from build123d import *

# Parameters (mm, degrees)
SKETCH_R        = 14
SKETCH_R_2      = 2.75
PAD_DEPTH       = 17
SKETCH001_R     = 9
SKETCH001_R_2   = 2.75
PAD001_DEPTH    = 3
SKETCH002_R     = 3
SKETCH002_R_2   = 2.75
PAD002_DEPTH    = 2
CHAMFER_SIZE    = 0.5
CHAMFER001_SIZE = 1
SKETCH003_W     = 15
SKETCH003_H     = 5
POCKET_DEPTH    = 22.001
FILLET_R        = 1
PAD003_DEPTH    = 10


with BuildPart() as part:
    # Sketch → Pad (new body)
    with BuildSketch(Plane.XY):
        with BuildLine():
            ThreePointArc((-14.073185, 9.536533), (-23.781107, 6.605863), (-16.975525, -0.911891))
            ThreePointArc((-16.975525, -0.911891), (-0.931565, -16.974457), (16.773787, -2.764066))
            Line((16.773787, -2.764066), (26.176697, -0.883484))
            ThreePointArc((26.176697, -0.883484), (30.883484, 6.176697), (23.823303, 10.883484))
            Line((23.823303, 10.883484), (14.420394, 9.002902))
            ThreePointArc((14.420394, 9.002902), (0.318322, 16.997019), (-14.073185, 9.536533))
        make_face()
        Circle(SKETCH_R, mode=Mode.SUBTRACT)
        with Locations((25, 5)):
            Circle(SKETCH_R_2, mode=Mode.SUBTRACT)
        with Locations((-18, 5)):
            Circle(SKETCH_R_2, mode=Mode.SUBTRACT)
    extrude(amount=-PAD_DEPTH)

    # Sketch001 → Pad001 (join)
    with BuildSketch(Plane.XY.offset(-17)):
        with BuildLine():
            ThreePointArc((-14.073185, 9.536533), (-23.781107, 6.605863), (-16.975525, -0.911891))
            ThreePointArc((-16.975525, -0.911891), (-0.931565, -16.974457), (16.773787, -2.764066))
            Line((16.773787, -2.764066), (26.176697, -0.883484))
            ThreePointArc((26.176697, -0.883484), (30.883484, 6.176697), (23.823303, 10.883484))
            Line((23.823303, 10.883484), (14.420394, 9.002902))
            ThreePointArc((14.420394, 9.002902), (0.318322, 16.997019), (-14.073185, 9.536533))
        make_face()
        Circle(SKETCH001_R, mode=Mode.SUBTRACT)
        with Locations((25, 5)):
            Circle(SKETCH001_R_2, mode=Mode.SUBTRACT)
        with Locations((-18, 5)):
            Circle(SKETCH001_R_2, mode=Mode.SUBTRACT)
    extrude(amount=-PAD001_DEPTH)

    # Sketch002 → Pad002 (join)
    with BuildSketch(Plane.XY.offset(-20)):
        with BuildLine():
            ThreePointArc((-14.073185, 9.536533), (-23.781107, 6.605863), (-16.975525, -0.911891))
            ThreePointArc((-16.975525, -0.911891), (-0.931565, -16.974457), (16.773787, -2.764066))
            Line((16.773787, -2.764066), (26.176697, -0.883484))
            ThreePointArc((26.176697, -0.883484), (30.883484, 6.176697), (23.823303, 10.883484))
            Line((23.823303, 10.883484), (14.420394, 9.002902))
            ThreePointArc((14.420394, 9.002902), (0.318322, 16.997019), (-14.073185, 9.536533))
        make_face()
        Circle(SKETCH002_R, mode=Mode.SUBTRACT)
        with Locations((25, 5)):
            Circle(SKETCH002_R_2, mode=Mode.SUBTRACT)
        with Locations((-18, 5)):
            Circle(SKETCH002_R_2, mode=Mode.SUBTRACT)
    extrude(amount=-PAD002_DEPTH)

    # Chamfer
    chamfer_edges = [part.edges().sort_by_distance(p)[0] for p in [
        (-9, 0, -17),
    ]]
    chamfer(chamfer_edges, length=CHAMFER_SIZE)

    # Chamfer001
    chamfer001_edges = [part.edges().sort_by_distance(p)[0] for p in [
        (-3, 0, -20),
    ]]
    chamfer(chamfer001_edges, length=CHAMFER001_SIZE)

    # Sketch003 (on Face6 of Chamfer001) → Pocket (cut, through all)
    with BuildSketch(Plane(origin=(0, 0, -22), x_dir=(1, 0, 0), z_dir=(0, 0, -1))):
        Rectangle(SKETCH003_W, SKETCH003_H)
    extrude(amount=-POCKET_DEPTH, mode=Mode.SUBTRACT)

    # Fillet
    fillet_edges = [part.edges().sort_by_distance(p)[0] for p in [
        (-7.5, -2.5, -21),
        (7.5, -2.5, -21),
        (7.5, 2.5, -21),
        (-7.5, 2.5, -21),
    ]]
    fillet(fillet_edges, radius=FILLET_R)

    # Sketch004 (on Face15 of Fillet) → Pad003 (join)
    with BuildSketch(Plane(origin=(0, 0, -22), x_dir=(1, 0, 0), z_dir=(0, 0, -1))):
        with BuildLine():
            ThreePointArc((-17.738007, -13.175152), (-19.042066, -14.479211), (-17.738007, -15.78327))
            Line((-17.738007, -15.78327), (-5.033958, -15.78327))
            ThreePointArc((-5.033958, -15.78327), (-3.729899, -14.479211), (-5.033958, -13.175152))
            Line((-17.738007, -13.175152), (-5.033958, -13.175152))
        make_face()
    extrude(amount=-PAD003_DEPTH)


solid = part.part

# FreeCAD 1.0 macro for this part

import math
import FreeCAD as App
import Part
import Sketcher
from FreeCAD import Vector


def edges_at(feature, points):
    """Names of the edges that pass closest to the given points."""
    edges = feature.Shape.Edges
    near = lambda p: min(range(len(edges)), key=lambda i: edges[i].distToShape(Part.Vertex(*p))[0])
    return sorted({f"Edge{near(p) + 1}" for p in points})

doc = App.newDocument("Part")
params = doc.addObject("Spreadsheet::Sheet", "Params")
for row, (alias, value) in enumerate([
    ("sketch1_diameter", "28 mm"),
    ("sketch1_radius", "6 mm"),
    ("sketch1_radius2", "17 mm"),
    ("sketch1_diameter2", "5.5 mm"),
    ("pad1_length", "17 mm"),
    ("sketch2_diameter", "18 mm"),
    ("sketch2_radius", "6 mm"),
    ("sketch2_radius2", "17 mm"),
    ("sketch2_diameter2", "5.5 mm"),
    ("pad2_length", "3 mm"),
    ("sketch3_diameter", "6 mm"),
    ("sketch3_radius", "6 mm"),
    ("sketch3_radius2", "17 mm"),
    ("sketch3_diameter2", "5.5 mm"),
    ("pad3_length", "2 mm"),
    ("chamfer_size", "0.5 mm"),
    ("chamfer2_size", "1 mm"),
    ("sketch4_width", "15 mm"),
    ("sketch4_height", "5 mm"),
    ("fillet_radius", "1 mm"),
    ("pad4_length", "10 mm"),
], start=1):
    params.set(f"A{row}", alias)
    params.set(f"B{row}", "=" + value)
    params.setAlias(f"B{row}", alias)

body = doc.addObject("PartDesign::Body", "Body")

# Sketch on XY plane
sketch1 = body.newObject("Sketcher::SketchObject", "Sketch")
sketch1.AttachmentSupport = (doc.getObject("XY_Plane"), [""])
sketch1.MapMode = "FlatFace"
sketch1.addGeometry([
    Part.ArcOfCircle(Part.Circle(Vector(-17.999999, 5, 0), Vector(0, 0, 1), 6), math.radians(49.120599), math.radians(279.831179)),  # 0
    Part.ArcOfCircle(Part.Circle(Vector(0, 0, 0), Vector(0, 0, 1), 17), math.radians(-176.925143), math.radians(-9.357383)),  # 1
    Part.LineSegment(Vector(16.773787, -2.764066, 0), Vector(26.176697, -0.883484, 0)),  # 2
    Part.ArcOfCircle(Part.Circle(Vector(25, 5, 0), Vector(0, 0, 1), 6), math.radians(-78.690066), math.radians(101.309934)),  # 3
    Part.LineSegment(Vector(23.823303, 10.883484, 0), Vector(14.420394, 9.002902, 0)),  # 4
    Part.ArcOfCircle(Part.Circle(Vector(0, -0.000001, 0), Vector(0, 0, 1), 17.000001), math.radians(31.977252), math.radians(145.876915)),  # 5
    Part.Circle(Vector(-18, 5, 0), Vector(0, 0, 1), 2.75),  # 6
    Part.Circle(Vector(0, 0, 0), Vector(0, 0, 1), 14),  # 7
    Part.Circle(Vector(25, 5, 0), Vector(0, 0, 1), 2.75),  # 8
], False)
sketch1.addConstraint([
    Sketcher.Constraint("Coincident", 0, 2, 1, 1),
    Sketcher.Constraint("Coincident", 1, 2, 2, 1),
    Sketcher.Constraint("Tangent", 2, 2, 3, 1),
    Sketcher.Constraint("Tangent", 3, 2, 4, 1),
    Sketcher.Constraint("Coincident", 4, 2, 5, 1),
    Sketcher.Constraint("Coincident", 5, 2, 0, 1),
    Sketcher.Constraint("Coincident", 1, 3, -1, 1),
    Sketcher.Constraint("Coincident", 5, 3, -1, 1),
    Sketcher.Constraint("Coincident", 7, 3, -1, 1),
    Sketcher.Constraint("Coincident", 6, 3, 0, 3),
    Sketcher.Constraint("Coincident", 8, 3, 3, 3),
    Sketcher.Constraint("Equal", 0, 3),
    Sketcher.Constraint("Equal", 1, 5),
    Sketcher.Constraint("Equal", 6, 8),
    Sketcher.Constraint("Parallel", 2, 4),
    Sketcher.Constraint("Horizontal", 0, 3, 3, 3),
    Sketcher.Constraint("Equal", 2, 4),
    Sketcher.Constraint("Diameter", 7, 28.0),
    Sketcher.Constraint("Radius", 0, 6.0),
    Sketcher.Constraint("Radius", 1, 17.0),
    Sketcher.Constraint("Diameter", 6, 5.5),
    Sketcher.Constraint("DistanceX", 0, 3, -1, 1, 17.999999),
    Sketcher.Constraint("DistanceY", -1, 1, 0, 3, 5.0),
    Sketcher.Constraint("DistanceX", -1, 1, 3, 3, 25.0),
])
sketch1.setExpression("Constraints[17]", "Params.sketch1_diameter")
sketch1.setExpression("Constraints[18]", "Params.sketch1_radius")
sketch1.setExpression("Constraints[19]", "Params.sketch1_radius2")
sketch1.setExpression("Constraints[20]", "Params.sketch1_diameter2")
pad1 = body.newObject("PartDesign::Pad", "Pad")
pad1.Profile = sketch1
pad1.setExpression("Length", "Params.pad1_length")
pad1.Reversed = True

# Sketch on XY plane
sketch2 = body.newObject("Sketcher::SketchObject", "Sketch001")
sketch2.AttachmentSupport = (doc.getObject("XY_Plane"), [""])
sketch2.MapMode = "FlatFace"
sketch2.AttachmentOffset = App.Placement(Vector(0, 0, -17), App.Rotation())
sketch2.addGeometry([
    Part.ArcOfCircle(Part.Circle(Vector(-17.999999, 5, 0), Vector(0, 0, 1), 6), math.radians(49.120599), math.radians(279.831179)),  # 0
    Part.ArcOfCircle(Part.Circle(Vector(0, 0, 0), Vector(0, 0, 1), 17), math.radians(-176.925143), math.radians(-9.357383)),  # 1
    Part.LineSegment(Vector(16.773787, -2.764066, 0), Vector(26.176697, -0.883484, 0)),  # 2
    Part.ArcOfCircle(Part.Circle(Vector(25, 5, 0), Vector(0, 0, 1), 6), math.radians(-78.690066), math.radians(101.309934)),  # 3
    Part.LineSegment(Vector(23.823303, 10.883484, 0), Vector(14.420394, 9.002902, 0)),  # 4
    Part.ArcOfCircle(Part.Circle(Vector(0, -0.000001, 0), Vector(0, 0, 1), 17.000001), math.radians(31.977252), math.radians(145.876915)),  # 5
    Part.Circle(Vector(0, 0, 0), Vector(0, 0, 1), 9),  # 6
    Part.Circle(Vector(-18, 5, 0), Vector(0, 0, 1), 2.75),  # 7
    Part.Circle(Vector(25, 5, 0), Vector(0, 0, 1), 2.75),  # 8
], False)
sketch2.addConstraint([
    Sketcher.Constraint("Coincident", 0, 2, 1, 1),
    Sketcher.Constraint("Coincident", 1, 2, 2, 1),
    Sketcher.Constraint("Tangent", 2, 2, 3, 1),
    Sketcher.Constraint("Tangent", 3, 2, 4, 1),
    Sketcher.Constraint("Coincident", 4, 2, 5, 1),
    Sketcher.Constraint("Coincident", 5, 2, 0, 1),
    Sketcher.Constraint("Coincident", 1, 3, -1, 1),
    Sketcher.Constraint("Coincident", 5, 3, -1, 1),
    Sketcher.Constraint("Coincident", 6, 3, -1, 1),
    Sketcher.Constraint("Coincident", 7, 3, 0, 3),
    Sketcher.Constraint("Coincident", 8, 3, 3, 3),
    Sketcher.Constraint("Equal", 0, 3),
    Sketcher.Constraint("Equal", 1, 5),
    Sketcher.Constraint("Equal", 7, 8),
    Sketcher.Constraint("Parallel", 2, 4),
    Sketcher.Constraint("Horizontal", 0, 3, 3, 3),
    Sketcher.Constraint("Equal", 2, 4),
    Sketcher.Constraint("Diameter", 6, 18.0),
    Sketcher.Constraint("Radius", 0, 6.0),
    Sketcher.Constraint("Radius", 1, 17.0),
    Sketcher.Constraint("Diameter", 7, 5.5),
    Sketcher.Constraint("DistanceX", 0, 3, -1, 1, 17.999999),
    Sketcher.Constraint("DistanceY", -1, 1, 0, 3, 5.0),
    Sketcher.Constraint("DistanceX", -1, 1, 3, 3, 25.0),
])
sketch2.setExpression("Constraints[17]", "Params.sketch2_diameter")
sketch2.setExpression("Constraints[18]", "Params.sketch2_radius")
sketch2.setExpression("Constraints[19]", "Params.sketch2_radius2")
sketch2.setExpression("Constraints[20]", "Params.sketch2_diameter2")
pad2 = body.newObject("PartDesign::Pad", "Pad001")
pad2.Profile = sketch2
pad2.setExpression("Length", "Params.pad2_length")
pad2.Reversed = True

# Sketch on XY plane
sketch3 = body.newObject("Sketcher::SketchObject", "Sketch002")
sketch3.AttachmentSupport = (doc.getObject("XY_Plane"), [""])
sketch3.MapMode = "FlatFace"
sketch3.AttachmentOffset = App.Placement(Vector(0, 0, -20), App.Rotation())
sketch3.addGeometry([
    Part.ArcOfCircle(Part.Circle(Vector(-17.999999, 5, 0), Vector(0, 0, 1), 6), math.radians(49.120599), math.radians(279.831179)),  # 0
    Part.ArcOfCircle(Part.Circle(Vector(0, 0, 0), Vector(0, 0, 1), 17), math.radians(-176.925143), math.radians(-9.357383)),  # 1
    Part.LineSegment(Vector(16.773787, -2.764066, 0), Vector(26.176697, -0.883484, 0)),  # 2
    Part.ArcOfCircle(Part.Circle(Vector(25, 5, 0), Vector(0, 0, 1), 6), math.radians(-78.690066), math.radians(101.309934)),  # 3
    Part.LineSegment(Vector(23.823303, 10.883484, 0), Vector(14.420394, 9.002902, 0)),  # 4
    Part.ArcOfCircle(Part.Circle(Vector(0, -0.000001, 0), Vector(0, 0, 1), 17.000001), math.radians(31.977252), math.radians(145.876915)),  # 5
    Part.Circle(Vector(0, 0, 0), Vector(0, 0, 1), 3),  # 6
    Part.Circle(Vector(-18, 5, 0), Vector(0, 0, 1), 2.75),  # 7
    Part.Circle(Vector(25, 5, 0), Vector(0, 0, 1), 2.75),  # 8
], False)
sketch3.addConstraint([
    Sketcher.Constraint("Coincident", 0, 2, 1, 1),
    Sketcher.Constraint("Coincident", 1, 2, 2, 1),
    Sketcher.Constraint("Tangent", 2, 2, 3, 1),
    Sketcher.Constraint("Tangent", 3, 2, 4, 1),
    Sketcher.Constraint("Coincident", 4, 2, 5, 1),
    Sketcher.Constraint("Coincident", 5, 2, 0, 1),
    Sketcher.Constraint("Coincident", 1, 3, -1, 1),
    Sketcher.Constraint("Coincident", 5, 3, -1, 1),
    Sketcher.Constraint("Coincident", 6, 3, -1, 1),
    Sketcher.Constraint("Coincident", 7, 3, 0, 3),
    Sketcher.Constraint("Coincident", 8, 3, 3, 3),
    Sketcher.Constraint("Equal", 0, 3),
    Sketcher.Constraint("Equal", 1, 5),
    Sketcher.Constraint("Equal", 7, 8),
    Sketcher.Constraint("Parallel", 2, 4),
    Sketcher.Constraint("Horizontal", 0, 3, 3, 3),
    Sketcher.Constraint("Equal", 2, 4),
    Sketcher.Constraint("Diameter", 6, 6.0),
    Sketcher.Constraint("Radius", 0, 6.0),
    Sketcher.Constraint("Radius", 1, 17.0),
    Sketcher.Constraint("Diameter", 7, 5.5),
    Sketcher.Constraint("DistanceX", 0, 3, -1, 1, 17.999999),
    Sketcher.Constraint("DistanceY", -1, 1, 0, 3, 5.0),
    Sketcher.Constraint("DistanceX", -1, 1, 3, 3, 25.0),
])
sketch3.setExpression("Constraints[17]", "Params.sketch3_diameter")
sketch3.setExpression("Constraints[18]", "Params.sketch3_radius")
sketch3.setExpression("Constraints[19]", "Params.sketch3_radius2")
sketch3.setExpression("Constraints[20]", "Params.sketch3_diameter2")
pad3 = body.newObject("PartDesign::Pad", "Pad002")
pad3.Profile = sketch3
pad3.setExpression("Length", "Params.pad3_length")
pad3.Reversed = True
doc.recompute()

chamfer = body.newObject("PartDesign::Chamfer", "Chamfer")
chamfer.Base = (pad3, edges_at(pad3, [(-9, 0, -17)]))
chamfer.setExpression("Size", "Params.chamfer_size")
doc.recompute()

chamfer2 = body.newObject("PartDesign::Chamfer", "Chamfer001")
chamfer2.Base = (chamfer, edges_at(chamfer, [(-3, 0, -20)]))
chamfer2.setExpression("Size", "Params.chamfer2_size")

# Sketch on XY plane
sketch4 = body.newObject("Sketcher::SketchObject", "Sketch003")
sketch4.AttachmentSupport = (doc.getObject("XY_Plane"), [""])
sketch4.MapMode = "FlatFace"
sketch4.AttachmentOffset = App.Placement(Vector(0, 0, -22), App.Rotation())
sketch4.addGeometry([
    Part.LineSegment(Vector(-7.5, -2.5, 0), Vector(-7.5, 2.5, 0)),
    Part.LineSegment(Vector(-7.5, 2.5, 0), Vector(7.5, 2.5, 0)),
    Part.LineSegment(Vector(7.5, 2.5, 0), Vector(7.5, -2.5, 0)),
    Part.LineSegment(Vector(7.5, -2.5, 0), Vector(-7.5, -2.5, 0)),
], False)
sketch4.addConstraint([
    Sketcher.Constraint("Coincident", 0, 2, 1, 1),
    Sketcher.Constraint("Coincident", 1, 2, 2, 1),
    Sketcher.Constraint("Coincident", 2, 2, 3, 1),
    Sketcher.Constraint("Coincident", 3, 2, 0, 1),
    Sketcher.Constraint("Vertical", 0),
    Sketcher.Constraint("Horizontal", 1),
    Sketcher.Constraint("Vertical", 2),
    Sketcher.Constraint("Horizontal", 3),
    Sketcher.Constraint("Symmetric", 0, 2, 2, 2, -1, 1),
    Sketcher.Constraint("DistanceX", 1, 1, 1, 2, 15.0),
    Sketcher.Constraint("DistanceY", 0, 1, 0, 2, 5.0),
])
sketch4.setExpression("Constraints[9]", "Params.sketch4_width")
sketch4.setExpression("Constraints[10]", "Params.sketch4_height")
pocket1 = body.newObject("PartDesign::Pocket", "Pocket")
pocket1.Profile = sketch4
pocket1.Type = "ThroughAll"
pocket1.Reversed = True
doc.recompute()

fillet = body.newObject("PartDesign::Fillet", "Fillet")
fillet.Base = (pocket1, edges_at(pocket1, [
    (-7.5, -2.5, -21),
    (7.5, -2.5, -21),
    (7.5, 2.5, -21),
    (-7.5, 2.5, -21),
]))
fillet.setExpression("Radius", "Params.fillet_radius")

# Sketch on XY plane
sketch5 = body.newObject("Sketcher::SketchObject", "Sketch004")
sketch5.AttachmentSupport = (doc.getObject("XY_Plane"), [""])
sketch5.MapMode = "FlatFace"
sketch5.AttachmentOffset = App.Placement(Vector(0, 0, -22), App.Rotation())
sketch5.addGeometry([
    Part.ArcOfCircle(Part.Circle(Vector(-17.738007, 14.479211, 0), Vector(0, 0, 1), 1.304059), math.radians(90), math.radians(270)),
    Part.LineSegment(Vector(-17.738007, 15.78327, 0), Vector(-5.033958, 15.78327, 0)),
    Part.ArcOfCircle(Part.Circle(Vector(-5.033958, 14.479211, 0), Vector(0, 0, 1), 1.304059), math.radians(-90), math.radians(90)),
    Part.LineSegment(Vector(-5.033958, 13.175152, 0), Vector(-17.738007, 13.175152, 0)),
], False)
sketch5.addConstraint([
    Sketcher.Constraint("Tangent", 0, 1, 1, 1),
    Sketcher.Constraint("Tangent", 1, 2, 2, 2),
    Sketcher.Constraint("Tangent", 2, 1, 3, 1),
    Sketcher.Constraint("Tangent", 3, 2, 0, 2),
    Sketcher.Constraint("Horizontal", 1),
    Sketcher.Constraint("Horizontal", 3),
    Sketcher.Constraint("Radius", 0, 1.304059),
    Sketcher.Constraint("DistanceX", 1, 1, 1, 2, 12.704049),
    Sketcher.Constraint("DistanceY", -1, 1, 0, 3, 14.479211),
    Sketcher.Constraint("DistanceX", 0, 3, -1, 1, 17.738007),
])
pad4 = body.newObject("PartDesign::Pad", "Pad003")
pad4.Profile = sketch5
pad4.setExpression("Length", "Params.pad4_length")

doc.recompute()
